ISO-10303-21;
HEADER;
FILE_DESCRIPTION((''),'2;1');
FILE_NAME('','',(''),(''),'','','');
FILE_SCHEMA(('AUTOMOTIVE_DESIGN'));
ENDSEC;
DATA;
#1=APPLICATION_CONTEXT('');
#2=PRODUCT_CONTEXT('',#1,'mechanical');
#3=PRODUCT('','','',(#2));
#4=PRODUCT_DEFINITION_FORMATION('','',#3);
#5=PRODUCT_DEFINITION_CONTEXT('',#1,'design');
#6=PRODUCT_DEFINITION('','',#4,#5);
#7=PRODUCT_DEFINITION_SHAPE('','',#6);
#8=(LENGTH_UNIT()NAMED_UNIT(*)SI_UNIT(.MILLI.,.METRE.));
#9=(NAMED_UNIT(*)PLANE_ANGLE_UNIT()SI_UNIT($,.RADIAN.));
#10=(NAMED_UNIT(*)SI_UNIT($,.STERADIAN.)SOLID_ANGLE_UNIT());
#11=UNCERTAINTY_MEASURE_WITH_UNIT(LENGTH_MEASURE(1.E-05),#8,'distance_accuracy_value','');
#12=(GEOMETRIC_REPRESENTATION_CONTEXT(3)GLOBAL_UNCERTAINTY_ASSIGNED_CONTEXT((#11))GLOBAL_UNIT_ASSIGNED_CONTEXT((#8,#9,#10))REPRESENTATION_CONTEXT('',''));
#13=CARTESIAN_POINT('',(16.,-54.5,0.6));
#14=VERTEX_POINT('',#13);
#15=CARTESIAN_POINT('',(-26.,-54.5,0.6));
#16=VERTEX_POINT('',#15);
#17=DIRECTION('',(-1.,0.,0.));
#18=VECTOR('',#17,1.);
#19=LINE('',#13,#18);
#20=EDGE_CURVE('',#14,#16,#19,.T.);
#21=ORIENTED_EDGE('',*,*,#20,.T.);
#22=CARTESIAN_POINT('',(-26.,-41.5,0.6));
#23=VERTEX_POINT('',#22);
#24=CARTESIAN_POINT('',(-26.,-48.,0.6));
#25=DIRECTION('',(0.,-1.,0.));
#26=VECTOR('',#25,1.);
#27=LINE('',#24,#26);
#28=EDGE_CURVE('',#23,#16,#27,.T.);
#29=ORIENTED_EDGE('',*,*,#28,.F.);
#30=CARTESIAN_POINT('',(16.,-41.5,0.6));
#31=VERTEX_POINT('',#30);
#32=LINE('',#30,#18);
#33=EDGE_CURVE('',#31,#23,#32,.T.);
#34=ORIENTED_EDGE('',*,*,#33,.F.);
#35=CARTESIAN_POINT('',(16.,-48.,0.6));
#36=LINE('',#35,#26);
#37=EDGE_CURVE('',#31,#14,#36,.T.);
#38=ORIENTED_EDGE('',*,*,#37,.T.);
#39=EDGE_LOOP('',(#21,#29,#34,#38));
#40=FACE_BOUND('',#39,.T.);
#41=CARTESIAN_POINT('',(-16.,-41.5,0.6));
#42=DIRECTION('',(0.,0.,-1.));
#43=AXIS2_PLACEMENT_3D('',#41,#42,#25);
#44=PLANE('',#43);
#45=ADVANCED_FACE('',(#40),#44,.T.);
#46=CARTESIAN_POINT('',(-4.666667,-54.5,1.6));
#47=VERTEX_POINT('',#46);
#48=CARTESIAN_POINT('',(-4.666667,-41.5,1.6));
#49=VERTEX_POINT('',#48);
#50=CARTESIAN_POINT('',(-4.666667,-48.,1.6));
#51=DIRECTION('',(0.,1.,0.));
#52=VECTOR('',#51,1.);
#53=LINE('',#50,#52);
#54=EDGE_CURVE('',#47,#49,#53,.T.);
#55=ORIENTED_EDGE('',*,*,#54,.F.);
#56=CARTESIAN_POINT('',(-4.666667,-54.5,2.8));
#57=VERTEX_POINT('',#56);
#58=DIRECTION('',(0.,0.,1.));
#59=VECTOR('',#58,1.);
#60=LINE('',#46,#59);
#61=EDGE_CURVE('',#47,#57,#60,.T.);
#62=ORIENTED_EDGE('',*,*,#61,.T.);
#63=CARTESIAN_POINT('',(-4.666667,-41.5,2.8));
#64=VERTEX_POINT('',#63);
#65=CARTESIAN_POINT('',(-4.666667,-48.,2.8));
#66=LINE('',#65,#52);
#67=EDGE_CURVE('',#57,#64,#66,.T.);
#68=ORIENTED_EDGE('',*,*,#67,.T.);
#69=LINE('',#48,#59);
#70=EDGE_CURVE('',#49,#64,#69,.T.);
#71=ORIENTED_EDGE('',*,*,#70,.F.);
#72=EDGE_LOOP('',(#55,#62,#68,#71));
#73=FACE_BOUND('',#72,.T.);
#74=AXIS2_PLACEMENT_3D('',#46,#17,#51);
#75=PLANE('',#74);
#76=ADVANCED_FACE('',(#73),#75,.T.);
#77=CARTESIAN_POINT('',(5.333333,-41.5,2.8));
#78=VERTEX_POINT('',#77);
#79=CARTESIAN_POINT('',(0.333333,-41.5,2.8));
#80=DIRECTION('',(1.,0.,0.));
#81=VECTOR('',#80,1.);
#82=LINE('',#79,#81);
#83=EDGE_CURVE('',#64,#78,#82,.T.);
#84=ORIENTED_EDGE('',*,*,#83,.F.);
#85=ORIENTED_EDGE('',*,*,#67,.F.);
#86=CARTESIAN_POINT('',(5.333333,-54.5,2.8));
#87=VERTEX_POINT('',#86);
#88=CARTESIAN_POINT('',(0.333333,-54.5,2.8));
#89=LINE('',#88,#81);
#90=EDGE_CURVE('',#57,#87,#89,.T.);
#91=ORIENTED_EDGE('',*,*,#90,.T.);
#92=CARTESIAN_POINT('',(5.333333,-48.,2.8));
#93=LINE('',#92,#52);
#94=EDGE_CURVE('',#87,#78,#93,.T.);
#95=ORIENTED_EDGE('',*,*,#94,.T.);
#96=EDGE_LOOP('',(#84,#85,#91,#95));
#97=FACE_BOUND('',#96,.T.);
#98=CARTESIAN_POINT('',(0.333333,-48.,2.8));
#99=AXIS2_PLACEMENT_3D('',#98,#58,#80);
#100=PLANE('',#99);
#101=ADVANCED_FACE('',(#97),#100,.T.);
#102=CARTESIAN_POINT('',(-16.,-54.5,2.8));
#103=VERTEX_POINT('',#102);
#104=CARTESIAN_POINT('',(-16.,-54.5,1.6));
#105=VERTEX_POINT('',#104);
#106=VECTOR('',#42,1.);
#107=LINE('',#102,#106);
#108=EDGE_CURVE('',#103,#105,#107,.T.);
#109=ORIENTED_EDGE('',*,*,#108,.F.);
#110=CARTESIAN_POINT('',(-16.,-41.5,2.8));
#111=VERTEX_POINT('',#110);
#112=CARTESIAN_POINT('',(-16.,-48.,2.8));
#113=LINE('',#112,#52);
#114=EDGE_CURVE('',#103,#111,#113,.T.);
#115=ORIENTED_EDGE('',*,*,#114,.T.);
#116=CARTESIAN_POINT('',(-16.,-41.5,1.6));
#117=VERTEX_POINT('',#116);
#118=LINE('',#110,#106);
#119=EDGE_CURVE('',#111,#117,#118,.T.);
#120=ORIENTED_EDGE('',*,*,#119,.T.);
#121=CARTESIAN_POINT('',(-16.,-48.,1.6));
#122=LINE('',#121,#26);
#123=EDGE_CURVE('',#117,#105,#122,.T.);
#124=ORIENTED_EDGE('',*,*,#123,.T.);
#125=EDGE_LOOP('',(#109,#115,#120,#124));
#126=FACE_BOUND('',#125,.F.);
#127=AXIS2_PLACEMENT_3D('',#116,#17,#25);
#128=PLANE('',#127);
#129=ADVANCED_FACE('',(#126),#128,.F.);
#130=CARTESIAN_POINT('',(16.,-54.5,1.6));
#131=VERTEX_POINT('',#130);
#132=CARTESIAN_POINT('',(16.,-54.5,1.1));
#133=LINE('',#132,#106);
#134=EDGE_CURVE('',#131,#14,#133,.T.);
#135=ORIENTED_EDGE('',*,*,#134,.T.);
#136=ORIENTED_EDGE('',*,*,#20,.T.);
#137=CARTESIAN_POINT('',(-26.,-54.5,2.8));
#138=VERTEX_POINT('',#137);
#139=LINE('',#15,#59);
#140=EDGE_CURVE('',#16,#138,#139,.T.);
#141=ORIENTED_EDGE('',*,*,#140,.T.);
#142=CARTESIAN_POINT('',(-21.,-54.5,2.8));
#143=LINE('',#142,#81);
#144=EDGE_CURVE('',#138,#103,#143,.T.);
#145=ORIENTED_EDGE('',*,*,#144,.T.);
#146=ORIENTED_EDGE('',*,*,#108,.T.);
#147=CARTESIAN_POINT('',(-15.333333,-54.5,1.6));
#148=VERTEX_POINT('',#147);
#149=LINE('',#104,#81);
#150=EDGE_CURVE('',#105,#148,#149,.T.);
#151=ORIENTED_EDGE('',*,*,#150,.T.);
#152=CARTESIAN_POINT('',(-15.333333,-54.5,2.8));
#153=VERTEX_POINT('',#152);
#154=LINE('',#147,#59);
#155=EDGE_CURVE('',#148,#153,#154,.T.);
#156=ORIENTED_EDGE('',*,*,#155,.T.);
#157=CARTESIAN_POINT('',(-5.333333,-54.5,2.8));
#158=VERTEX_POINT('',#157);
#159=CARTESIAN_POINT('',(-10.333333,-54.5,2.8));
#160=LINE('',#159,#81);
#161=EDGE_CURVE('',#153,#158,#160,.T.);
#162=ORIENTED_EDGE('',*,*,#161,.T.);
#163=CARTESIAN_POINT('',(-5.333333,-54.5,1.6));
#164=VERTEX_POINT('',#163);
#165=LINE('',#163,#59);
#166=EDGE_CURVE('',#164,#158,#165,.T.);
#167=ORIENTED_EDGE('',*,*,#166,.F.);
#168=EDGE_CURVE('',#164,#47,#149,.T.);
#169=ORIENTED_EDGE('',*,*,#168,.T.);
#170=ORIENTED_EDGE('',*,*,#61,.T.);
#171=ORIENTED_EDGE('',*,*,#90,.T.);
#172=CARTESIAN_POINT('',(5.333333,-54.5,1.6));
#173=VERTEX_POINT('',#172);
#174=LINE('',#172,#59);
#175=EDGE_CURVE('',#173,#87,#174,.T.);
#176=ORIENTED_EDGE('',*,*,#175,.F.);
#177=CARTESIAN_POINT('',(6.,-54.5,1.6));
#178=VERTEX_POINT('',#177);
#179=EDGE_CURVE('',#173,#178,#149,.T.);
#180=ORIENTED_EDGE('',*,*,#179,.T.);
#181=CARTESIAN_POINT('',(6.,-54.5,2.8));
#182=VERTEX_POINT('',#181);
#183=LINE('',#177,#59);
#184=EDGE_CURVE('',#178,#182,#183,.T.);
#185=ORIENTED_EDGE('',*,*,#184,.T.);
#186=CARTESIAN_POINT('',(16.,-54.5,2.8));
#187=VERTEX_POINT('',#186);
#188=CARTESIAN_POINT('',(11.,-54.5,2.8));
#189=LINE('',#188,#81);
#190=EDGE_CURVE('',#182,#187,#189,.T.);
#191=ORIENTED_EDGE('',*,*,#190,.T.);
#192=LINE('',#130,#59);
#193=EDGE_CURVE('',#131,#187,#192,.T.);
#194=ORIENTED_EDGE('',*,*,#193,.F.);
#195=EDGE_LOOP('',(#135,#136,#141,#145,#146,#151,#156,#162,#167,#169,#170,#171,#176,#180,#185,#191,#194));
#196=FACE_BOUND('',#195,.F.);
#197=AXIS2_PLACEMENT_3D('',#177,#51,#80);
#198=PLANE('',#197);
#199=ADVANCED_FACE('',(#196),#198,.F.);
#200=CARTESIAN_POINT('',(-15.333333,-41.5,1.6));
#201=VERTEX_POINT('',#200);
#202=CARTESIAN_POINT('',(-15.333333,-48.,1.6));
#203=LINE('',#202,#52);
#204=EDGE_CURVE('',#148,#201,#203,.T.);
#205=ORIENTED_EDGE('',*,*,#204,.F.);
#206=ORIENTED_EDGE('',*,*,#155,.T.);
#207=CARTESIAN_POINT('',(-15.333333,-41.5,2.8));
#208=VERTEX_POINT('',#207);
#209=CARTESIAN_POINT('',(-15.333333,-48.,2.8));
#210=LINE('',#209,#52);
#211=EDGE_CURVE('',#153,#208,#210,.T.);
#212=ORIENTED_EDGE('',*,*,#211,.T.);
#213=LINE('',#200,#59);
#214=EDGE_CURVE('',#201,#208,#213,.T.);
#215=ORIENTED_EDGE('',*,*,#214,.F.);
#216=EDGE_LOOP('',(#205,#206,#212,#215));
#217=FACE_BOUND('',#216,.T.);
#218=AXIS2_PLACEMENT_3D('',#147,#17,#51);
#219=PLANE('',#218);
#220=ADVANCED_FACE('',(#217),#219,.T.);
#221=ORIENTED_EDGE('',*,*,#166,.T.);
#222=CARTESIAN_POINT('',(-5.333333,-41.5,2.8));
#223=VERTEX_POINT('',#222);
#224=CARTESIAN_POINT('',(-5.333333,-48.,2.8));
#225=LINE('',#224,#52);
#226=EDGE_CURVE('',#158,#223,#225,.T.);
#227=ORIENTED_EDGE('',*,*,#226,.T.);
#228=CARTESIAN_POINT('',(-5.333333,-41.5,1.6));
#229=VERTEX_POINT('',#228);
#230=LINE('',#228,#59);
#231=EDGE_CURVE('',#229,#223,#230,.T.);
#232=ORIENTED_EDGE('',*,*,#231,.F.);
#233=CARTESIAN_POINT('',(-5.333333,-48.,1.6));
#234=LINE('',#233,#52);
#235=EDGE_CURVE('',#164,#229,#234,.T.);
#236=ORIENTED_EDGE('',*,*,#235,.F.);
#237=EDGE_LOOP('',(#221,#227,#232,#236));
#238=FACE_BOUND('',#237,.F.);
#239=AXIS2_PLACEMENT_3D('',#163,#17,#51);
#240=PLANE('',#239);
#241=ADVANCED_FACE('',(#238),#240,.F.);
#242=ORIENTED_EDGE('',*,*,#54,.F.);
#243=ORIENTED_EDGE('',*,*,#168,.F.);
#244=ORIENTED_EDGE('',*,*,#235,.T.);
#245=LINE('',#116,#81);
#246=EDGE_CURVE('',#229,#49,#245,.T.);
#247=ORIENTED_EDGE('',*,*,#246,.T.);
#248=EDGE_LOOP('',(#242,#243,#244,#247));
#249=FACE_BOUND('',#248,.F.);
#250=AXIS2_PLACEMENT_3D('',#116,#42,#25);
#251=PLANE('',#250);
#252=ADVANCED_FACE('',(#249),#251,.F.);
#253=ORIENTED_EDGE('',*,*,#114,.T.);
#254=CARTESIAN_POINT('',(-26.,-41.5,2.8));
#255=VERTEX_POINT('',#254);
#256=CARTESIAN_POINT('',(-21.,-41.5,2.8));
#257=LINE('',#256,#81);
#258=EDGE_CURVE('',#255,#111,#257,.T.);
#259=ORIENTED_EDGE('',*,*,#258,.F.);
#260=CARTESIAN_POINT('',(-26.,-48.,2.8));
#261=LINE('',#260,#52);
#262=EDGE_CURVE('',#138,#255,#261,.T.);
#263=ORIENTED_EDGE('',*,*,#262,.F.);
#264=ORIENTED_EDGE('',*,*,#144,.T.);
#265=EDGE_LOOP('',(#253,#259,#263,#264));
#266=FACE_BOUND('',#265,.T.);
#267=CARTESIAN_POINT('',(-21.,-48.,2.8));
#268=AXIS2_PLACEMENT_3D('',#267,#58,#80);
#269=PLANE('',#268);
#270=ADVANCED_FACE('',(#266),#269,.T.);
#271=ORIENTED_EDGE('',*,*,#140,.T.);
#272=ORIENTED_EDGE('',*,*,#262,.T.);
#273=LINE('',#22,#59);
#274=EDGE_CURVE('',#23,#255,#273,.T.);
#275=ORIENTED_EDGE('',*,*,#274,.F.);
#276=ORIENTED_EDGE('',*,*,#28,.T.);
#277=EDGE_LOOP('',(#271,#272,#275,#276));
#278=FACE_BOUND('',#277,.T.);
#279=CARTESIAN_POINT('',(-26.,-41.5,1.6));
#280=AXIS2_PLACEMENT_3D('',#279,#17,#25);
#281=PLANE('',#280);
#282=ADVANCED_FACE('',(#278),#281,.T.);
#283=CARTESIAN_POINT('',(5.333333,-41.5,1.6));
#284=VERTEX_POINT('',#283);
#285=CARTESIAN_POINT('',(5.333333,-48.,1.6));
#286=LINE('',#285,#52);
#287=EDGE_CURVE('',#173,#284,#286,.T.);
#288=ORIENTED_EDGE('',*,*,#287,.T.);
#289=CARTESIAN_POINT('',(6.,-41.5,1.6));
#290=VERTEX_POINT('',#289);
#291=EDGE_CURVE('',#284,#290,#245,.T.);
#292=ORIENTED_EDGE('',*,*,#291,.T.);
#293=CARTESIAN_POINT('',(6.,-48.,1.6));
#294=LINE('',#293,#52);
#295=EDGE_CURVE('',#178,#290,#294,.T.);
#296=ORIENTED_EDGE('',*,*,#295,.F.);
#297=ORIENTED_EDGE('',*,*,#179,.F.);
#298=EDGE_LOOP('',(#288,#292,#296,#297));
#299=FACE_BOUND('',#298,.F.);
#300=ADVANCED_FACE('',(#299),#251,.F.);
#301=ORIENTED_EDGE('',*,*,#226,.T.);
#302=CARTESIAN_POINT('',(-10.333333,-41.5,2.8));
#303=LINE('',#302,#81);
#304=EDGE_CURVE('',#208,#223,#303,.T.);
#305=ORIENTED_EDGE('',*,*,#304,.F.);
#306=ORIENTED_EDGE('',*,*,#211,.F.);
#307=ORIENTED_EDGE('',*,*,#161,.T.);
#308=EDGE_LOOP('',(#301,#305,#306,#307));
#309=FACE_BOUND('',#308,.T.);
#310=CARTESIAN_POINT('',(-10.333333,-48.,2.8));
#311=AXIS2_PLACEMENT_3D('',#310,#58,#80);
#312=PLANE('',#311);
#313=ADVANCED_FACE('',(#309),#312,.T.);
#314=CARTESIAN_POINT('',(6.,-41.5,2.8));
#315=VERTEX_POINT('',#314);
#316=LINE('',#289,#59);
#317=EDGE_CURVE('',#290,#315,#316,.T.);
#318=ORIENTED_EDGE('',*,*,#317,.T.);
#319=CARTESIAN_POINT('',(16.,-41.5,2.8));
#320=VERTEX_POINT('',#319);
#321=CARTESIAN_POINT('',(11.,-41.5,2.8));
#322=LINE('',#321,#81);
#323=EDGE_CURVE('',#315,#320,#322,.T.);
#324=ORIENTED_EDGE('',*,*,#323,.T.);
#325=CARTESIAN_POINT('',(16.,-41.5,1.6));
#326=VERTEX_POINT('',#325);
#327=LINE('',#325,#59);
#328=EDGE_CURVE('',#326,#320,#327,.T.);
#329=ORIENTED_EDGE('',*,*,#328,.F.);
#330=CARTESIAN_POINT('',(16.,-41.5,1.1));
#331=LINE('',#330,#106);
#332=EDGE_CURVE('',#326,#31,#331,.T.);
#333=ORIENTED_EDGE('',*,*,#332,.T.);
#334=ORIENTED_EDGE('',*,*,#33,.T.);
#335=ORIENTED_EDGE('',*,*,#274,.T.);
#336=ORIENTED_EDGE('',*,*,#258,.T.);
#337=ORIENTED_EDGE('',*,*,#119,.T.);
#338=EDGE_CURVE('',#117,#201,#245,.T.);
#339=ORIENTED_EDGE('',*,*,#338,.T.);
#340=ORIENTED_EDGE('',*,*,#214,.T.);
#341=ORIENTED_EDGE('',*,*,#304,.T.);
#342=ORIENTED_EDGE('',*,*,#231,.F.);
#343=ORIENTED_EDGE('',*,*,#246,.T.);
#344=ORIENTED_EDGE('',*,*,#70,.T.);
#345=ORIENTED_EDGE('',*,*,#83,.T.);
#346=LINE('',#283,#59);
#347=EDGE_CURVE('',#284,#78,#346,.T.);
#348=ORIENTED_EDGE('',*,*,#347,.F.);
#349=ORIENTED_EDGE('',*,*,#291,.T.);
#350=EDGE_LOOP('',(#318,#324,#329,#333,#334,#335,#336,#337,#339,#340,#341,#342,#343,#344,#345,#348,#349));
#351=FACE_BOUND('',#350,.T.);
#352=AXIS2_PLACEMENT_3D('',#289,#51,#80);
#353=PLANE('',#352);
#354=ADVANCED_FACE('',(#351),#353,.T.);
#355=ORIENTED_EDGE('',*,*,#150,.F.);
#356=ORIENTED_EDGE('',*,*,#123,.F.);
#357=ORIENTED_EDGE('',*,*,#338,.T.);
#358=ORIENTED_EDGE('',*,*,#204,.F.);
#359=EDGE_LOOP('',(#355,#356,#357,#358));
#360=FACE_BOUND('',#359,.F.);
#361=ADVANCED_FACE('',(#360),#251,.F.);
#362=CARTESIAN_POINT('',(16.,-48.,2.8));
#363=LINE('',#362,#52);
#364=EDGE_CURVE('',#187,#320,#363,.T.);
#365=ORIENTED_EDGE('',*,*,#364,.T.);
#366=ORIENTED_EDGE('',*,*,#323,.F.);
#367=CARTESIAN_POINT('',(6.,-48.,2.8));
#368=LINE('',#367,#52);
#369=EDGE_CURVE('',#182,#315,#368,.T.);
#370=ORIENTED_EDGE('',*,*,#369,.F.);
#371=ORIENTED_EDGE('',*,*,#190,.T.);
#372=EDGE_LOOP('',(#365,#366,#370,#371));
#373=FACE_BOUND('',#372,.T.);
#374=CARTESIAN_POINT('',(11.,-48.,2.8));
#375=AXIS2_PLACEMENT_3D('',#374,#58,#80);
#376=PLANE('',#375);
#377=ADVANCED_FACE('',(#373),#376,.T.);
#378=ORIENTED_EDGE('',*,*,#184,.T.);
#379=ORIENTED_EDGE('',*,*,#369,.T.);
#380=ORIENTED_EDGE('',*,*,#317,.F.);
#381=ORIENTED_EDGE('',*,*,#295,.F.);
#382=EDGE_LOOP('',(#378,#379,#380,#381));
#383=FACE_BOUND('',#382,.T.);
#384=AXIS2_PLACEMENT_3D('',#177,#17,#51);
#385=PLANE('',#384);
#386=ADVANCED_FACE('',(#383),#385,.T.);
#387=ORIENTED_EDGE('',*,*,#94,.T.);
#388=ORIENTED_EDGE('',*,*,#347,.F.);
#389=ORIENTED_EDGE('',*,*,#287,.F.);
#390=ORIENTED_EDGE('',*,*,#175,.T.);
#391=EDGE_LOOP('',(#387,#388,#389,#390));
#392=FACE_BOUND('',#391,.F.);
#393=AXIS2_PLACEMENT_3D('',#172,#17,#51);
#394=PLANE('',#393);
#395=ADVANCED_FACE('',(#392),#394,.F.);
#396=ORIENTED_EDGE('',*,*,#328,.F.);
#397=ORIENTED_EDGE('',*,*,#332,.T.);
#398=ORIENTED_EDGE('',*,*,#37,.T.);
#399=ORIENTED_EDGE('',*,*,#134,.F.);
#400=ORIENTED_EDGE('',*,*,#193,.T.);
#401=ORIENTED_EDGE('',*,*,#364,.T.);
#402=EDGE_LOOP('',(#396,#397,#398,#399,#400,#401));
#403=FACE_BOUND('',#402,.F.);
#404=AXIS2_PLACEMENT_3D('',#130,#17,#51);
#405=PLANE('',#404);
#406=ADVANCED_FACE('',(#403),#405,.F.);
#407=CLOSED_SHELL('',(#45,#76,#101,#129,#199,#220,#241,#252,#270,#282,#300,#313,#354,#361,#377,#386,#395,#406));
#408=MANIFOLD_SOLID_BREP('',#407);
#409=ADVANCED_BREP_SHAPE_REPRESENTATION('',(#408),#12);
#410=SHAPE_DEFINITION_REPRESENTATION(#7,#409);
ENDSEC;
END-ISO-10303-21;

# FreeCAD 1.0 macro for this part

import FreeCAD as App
import Part
import Sketcher
from FreeCAD import Vector
Q = App.Units.Quantity

doc = App.newDocument("Part")
body = doc.addObject("PartDesign::Body", "Body")

# Sketch on XY plane
sketch1 = body.newObject("Sketcher::SketchObject", "Sketch")
sketch1.AttachmentSupport = (doc.getObject("XY_Plane"), [""])
sketch1.MapMode = "FlatFace"
sketch1.addGeometry(Part.LineSegment(Vector(-5, 6, 0), Vector(-5, -6, 0)), False)
sketch1.addGeometry(Part.LineSegment(Vector(-5, -6, 0), Vector(5, -6, 0)), False)
sketch1.addGeometry(Part.LineSegment(Vector(5, -6, 0), Vector(5, 6, 0)), False)
sketch1.addGeometry(Part.LineSegment(Vector(5, 6, 0), Vector(-5, 6, 0)), False)
sketch1.addConstraint(Sketcher.Constraint("Coincident", 0, 2, 1, 1))
sketch1.addConstraint(Sketcher.Constraint("Coincident", 1, 2, 2, 1))
sketch1.addConstraint(Sketcher.Constraint("Coincident", 2, 2, 3, 1))
sketch1.addConstraint(Sketcher.Constraint("Coincident", 3, 2, 0, 1))
sketch1.addConstraint(Sketcher.Constraint("Vertical", 0))
sketch1.addConstraint(Sketcher.Constraint("Horizontal", 1))
sketch1.addConstraint(Sketcher.Constraint("Vertical", 2))
sketch1.addConstraint(Sketcher.Constraint("Horizontal", 3))
sketch1.addConstraint(Sketcher.Constraint("Symmetric", 0, 2, 2, 2, -1, 1))
sketch1.addConstraint(Sketcher.Constraint("DistanceX", 1, 1, 1, 2, Q("10 mm")))
sketch1.addConstraint(Sketcher.Constraint("DistanceY", 0, 2, 0, 1, Q("13 mm")))
pad1 = body.newObject("PartDesign::Pad", "Pad")
pad1.Profile = sketch1
pad1.Length = 1.2

# Sketch on XY plane
sketch2 = body.newObject("Sketcher::SketchObject", "Sketch001")
sketch2.AttachmentSupport = (doc.getObject("XY_Plane"), [""])
sketch2.MapMode = "FlatFace"
sketch2.addGeometry(Part.LineSegment(Vector(-5, 6, 0), Vector(5, 6, 0)), False)
sketch2.addGeometry(Part.LineSegment(Vector(5, 6, 0), Vector(5, -6, 0)), False)
sketch2.addGeometry(Part.LineSegment(Vector(5, -6, 0), Vector(-5, -6, 0)), False)
sketch2.addGeometry(Part.LineSegment(Vector(-5, -6, 0), Vector(-5, 6, 0)), False)
sketch2.addConstraint(Sketcher.Constraint("Coincident", 0, 2, 1, 1))
sketch2.addConstraint(Sketcher.Constraint("Coincident", 1, 2, 2, 1))
sketch2.addConstraint(Sketcher.Constraint("Coincident", 2, 2, 3, 1))
sketch2.addConstraint(Sketcher.Constraint("Coincident", 3, 2, 0, 1))
sketch2.addConstraint(Sketcher.Constraint("Horizontal", 0))
sketch2.addConstraint(Sketcher.Constraint("Vertical", 1))
sketch2.addConstraint(Sketcher.Constraint("Horizontal", 2))
sketch2.addConstraint(Sketcher.Constraint("Vertical", 3))
sketch2.addConstraint(Sketcher.Constraint("Symmetric", 0, 2, 2, 2, -1, 1))
sketch2.addConstraint(Sketcher.Constraint("DistanceX", 0, 1, 0, 2, Q("10 mm")))
sketch2.addConstraint(Sketcher.Constraint("DistanceY", 1, 2, 1, 1, Q("13 mm")))
pad2 = body.newObject("PartDesign::Pad", "Pad001")
pad2.Profile = sketch2
pad2.Length = 1
pad2.Reversed = True

# Sketch on YZ plane
sketch3 = body.newObject("Sketcher::SketchObject", "Sketch002")
sketch3.AttachmentSupport = (doc.getObject("YZ_Plane"), [""])
sketch3.MapMode = "FlatFace"
sketch3.AttachmentOffset = App.Placement(Vector(0, 0, 5), App.Rotation())
sketch3.addGeometry(Part.LineSegment(Vector(6.5, -1, 0), Vector(6.5, 0, 0)), False)
sketch3.addGeometry(Part.LineSegment(Vector(6.5, 0, 0), Vector(-6.5, 0, 0)), False)
sketch3.addGeometry(Part.LineSegment(Vector(-6.5, 0, 0), Vector(-6.5, -1, 0)), False)
sketch3.addGeometry(Part.LineSegment(Vector(-6.5, -1, 0), Vector(6.5, -1, 0)), False)
sketch3.addConstraint(Sketcher.Constraint("Coincident", 0, 2, 1, 1))
sketch3.addConstraint(Sketcher.Constraint("Coincident", 1, 2, 2, 1))
sketch3.addConstraint(Sketcher.Constraint("Coincident", 2, 2, 3, 1))
sketch3.addConstraint(Sketcher.Constraint("Coincident", 3, 2, 0, 1))
sketch3.addConstraint(Sketcher.Constraint("Vertical", 0))
sketch3.addConstraint(Sketcher.Constraint("Horizontal", 1))
sketch3.addConstraint(Sketcher.Constraint("Vertical", 2))
sketch3.addConstraint(Sketcher.Constraint("Horizontal", 3))
sketch3.addConstraint(Sketcher.Constraint("Symmetric", 0, 2, 1, 2, -1, 1))
sketch3.addConstraint(Sketcher.Constraint("DistanceX", 1, 2, 1, 1, Q("13 mm")))
sketch3.addConstraint(Sketcher.Constraint("DistanceY", 0, 1, 0, 2, Q("1 mm")))
pad3 = body.newObject("PartDesign::Pad", "Pad002")
pad3.Profile = sketch3
pad3.Length = 32
doc.recompute()

linearpattern = body.newObject("PartDesign::LinearPattern", "LinearPattern")
linearpattern.Originals = [pad1]
linearpattern.Direction = (doc.getObject("X_Axis"), [""])
linearpattern.Mode = "offset"
linearpattern.Offset = 10.666667
linearpattern.Occurrences = 4
body.Tip = linearpattern
body2 = doc.addObject("PartDesign::Body", "Body001")
doc.recompute()

body.Placement = App.Placement(Vector(-21, -48, 1.6), App.Rotation(Vector(0, 0, 1), 0))
boolean = body2.newObject("PartDesign::Boolean", "Boolean")
boolean.Type = "Fuse"
boolean.addObjects([body])

doc.recompute()
